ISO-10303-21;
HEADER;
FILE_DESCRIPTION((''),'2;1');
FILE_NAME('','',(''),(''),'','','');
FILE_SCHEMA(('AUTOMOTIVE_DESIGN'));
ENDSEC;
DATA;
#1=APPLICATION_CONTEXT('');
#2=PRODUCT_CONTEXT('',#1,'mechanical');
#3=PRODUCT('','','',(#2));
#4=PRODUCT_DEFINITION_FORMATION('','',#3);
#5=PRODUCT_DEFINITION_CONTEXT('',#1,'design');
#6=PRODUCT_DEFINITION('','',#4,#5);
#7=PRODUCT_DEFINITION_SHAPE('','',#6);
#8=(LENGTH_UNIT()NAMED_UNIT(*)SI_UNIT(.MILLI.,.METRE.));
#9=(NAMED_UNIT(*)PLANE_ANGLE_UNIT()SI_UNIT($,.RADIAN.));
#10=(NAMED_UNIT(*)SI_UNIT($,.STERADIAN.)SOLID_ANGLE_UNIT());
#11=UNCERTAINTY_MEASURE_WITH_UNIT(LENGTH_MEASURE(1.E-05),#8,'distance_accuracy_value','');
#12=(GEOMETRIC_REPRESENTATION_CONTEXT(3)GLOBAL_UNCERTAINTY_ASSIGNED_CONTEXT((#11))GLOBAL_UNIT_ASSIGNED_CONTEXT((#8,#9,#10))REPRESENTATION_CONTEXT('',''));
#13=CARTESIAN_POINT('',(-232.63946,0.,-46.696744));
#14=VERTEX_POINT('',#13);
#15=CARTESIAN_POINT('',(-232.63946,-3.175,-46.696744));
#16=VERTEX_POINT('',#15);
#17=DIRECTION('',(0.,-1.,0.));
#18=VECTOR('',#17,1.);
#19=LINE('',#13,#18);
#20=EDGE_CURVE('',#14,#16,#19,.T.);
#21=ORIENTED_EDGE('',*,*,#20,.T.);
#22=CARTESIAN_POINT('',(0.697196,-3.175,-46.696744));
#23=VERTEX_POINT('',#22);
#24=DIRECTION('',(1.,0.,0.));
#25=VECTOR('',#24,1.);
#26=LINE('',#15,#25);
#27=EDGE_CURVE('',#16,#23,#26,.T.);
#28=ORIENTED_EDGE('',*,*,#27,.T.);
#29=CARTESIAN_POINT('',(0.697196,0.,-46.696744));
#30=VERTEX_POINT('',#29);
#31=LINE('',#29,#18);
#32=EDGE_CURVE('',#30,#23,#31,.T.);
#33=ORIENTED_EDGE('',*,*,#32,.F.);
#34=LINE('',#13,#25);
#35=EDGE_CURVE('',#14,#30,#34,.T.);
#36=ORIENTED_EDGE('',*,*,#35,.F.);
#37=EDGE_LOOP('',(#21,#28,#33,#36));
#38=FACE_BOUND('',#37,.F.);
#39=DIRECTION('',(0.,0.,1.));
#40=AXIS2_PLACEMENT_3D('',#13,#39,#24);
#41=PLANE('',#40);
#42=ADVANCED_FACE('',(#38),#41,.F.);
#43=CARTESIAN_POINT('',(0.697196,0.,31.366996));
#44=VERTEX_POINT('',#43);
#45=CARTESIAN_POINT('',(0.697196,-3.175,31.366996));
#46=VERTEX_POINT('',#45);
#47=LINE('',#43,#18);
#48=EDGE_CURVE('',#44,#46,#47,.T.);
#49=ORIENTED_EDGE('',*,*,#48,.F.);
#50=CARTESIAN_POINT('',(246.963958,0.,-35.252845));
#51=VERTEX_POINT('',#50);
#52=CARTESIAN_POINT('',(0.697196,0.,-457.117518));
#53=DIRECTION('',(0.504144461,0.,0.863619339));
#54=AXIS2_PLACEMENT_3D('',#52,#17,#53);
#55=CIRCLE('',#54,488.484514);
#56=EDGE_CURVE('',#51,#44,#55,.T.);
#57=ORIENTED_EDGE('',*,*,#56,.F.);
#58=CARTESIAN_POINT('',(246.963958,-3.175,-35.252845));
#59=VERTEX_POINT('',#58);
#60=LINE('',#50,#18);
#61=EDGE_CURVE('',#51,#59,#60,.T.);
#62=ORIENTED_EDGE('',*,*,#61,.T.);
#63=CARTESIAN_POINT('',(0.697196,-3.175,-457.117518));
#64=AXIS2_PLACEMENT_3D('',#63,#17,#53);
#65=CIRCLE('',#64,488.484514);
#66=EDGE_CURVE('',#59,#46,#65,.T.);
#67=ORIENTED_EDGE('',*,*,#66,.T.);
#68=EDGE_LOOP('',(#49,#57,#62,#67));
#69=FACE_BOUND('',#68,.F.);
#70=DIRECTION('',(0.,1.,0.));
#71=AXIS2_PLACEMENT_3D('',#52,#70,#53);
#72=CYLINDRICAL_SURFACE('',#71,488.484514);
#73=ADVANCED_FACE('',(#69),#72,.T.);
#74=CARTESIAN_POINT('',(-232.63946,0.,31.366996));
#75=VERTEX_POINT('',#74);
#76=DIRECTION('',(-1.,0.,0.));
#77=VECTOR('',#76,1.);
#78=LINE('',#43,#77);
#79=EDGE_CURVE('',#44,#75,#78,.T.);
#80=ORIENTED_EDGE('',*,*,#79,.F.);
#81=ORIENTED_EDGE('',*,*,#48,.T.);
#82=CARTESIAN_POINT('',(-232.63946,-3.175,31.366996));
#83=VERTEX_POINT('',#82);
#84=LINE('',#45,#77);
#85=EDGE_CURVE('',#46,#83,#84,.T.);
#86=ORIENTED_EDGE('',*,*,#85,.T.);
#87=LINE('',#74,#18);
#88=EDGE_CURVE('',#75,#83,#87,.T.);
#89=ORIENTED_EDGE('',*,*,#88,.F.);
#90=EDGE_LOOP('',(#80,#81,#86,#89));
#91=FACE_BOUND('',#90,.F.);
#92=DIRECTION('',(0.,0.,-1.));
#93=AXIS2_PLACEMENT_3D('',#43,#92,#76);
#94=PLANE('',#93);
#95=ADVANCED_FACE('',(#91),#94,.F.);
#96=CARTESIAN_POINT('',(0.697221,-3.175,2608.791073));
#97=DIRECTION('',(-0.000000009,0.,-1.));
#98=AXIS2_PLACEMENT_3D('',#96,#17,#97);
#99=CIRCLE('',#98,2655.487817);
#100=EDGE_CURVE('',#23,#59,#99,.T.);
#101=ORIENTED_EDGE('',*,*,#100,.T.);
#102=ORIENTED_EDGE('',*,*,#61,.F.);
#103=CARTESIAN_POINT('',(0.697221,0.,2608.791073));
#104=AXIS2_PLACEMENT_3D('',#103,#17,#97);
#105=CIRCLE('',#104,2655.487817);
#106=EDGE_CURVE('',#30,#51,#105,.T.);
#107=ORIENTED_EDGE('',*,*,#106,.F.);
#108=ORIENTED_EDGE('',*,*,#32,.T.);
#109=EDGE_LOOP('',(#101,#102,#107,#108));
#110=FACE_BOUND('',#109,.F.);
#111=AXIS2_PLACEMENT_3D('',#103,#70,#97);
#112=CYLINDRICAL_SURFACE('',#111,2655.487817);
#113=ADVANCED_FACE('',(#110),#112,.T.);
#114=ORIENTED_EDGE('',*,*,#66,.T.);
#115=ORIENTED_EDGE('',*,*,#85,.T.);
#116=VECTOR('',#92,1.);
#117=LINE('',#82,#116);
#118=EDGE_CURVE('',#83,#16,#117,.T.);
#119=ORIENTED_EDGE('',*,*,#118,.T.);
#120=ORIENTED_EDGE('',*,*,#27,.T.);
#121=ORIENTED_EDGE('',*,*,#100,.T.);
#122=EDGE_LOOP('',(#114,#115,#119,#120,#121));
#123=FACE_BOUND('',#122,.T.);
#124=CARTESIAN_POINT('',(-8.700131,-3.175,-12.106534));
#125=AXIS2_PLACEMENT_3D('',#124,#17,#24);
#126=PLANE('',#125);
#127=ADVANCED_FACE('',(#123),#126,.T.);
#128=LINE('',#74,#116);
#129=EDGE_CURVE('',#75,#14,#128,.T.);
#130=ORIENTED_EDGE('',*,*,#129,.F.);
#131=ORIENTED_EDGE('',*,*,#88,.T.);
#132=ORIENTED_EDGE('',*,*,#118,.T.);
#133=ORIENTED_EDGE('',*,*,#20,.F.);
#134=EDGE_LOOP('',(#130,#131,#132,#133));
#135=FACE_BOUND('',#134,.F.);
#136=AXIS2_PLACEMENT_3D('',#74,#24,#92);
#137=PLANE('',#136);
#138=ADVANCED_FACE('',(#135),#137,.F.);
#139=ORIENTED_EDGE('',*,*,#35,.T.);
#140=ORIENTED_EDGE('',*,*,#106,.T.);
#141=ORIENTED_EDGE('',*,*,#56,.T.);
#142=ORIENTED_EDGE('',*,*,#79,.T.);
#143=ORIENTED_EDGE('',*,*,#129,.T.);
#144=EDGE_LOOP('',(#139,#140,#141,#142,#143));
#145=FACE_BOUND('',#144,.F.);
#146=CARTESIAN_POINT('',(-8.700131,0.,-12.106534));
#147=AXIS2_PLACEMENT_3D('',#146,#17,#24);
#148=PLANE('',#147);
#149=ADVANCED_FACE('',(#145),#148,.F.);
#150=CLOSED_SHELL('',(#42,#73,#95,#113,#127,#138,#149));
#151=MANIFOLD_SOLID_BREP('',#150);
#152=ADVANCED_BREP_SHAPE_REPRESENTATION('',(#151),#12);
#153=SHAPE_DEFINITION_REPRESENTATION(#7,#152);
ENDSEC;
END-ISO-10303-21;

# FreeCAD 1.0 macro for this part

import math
import FreeCAD as App
import Part
import Sketcher
Q = App.Units.Quantity

doc = App.newDocument("Part")
body = doc.addObject("PartDesign::Body", "Body")

# Sketch on XZ plane
sketch1 = body.newObject("Sketcher::SketchObject", "Sketch")
sketch1.AttachmentSupport = (doc.getObject("XZ_Plane"), [""])
sketch1.MapMode = "FlatFace"
sketch1.addGeometry(Part.LineSegment(App.Vector(0.697196, 31.366996, 0), App.Vector(-232.63946, 31.366996, 0)), False)
sketch1.addGeometry(Part.LineSegment(App.Vector(-232.63946, 31.366996, 0), App.Vector(-232.63946, -46.696744, 0)), False)
sketch1.addGeometry(Part.LineSegment(App.Vector(-232.63946, -46.696744, 0), App.Vector(0.697196, -46.696744, 0)), False)
sketch1.addGeometry(Part.ArcOfCircle(Part.Circle(App.Vector(0.697221, 2608.791073, 0), App.Vector(0, 0, 1), 2655.487817), math.radians(-90.000001), math.radians(-84.678812)), False)
sketch1.addGeometry(Part.ArcOfCircle(Part.Circle(App.Vector(0.697196, -457.117518, 0), App.Vector(0, 0, 1), 488.484514), math.radians(59.725424), math.radians(90)), False)
sketch1.addConstraint(Sketcher.Constraint("Coincident", 0, 2, 1, 1))
sketch1.addConstraint(Sketcher.Constraint("Coincident", 1, 2, 2, 1))
sketch1.addConstraint(Sketcher.Constraint("Coincident", 2, 2, 3, 1))
sketch1.addConstraint(Sketcher.Constraint("Coincident", 3, 2, 4, 1))
sketch1.addConstraint(Sketcher.Constraint("Coincident", 4, 2, 0, 1))
sketch1.addConstraint(Sketcher.Constraint("Horizontal", 0))
sketch1.addConstraint(Sketcher.Constraint("Vertical", 1))
sketch1.addConstraint(Sketcher.Constraint("Horizontal", 2))
sketch1.addConstraint(Sketcher.Constraint("Radius", 3, 2655.487817))
sketch1.addConstraint(Sketcher.Constraint("Radius", 4, 488.484514))
sketch1.addConstraint(Sketcher.Constraint("DistanceY", 1, 2, 1, 1, 78.06374))
sketch1.addConstraint(Sketcher.Constraint("DistanceX", 0, 2, 0, 1, 233.336656))
sketch1.addConstraint(Sketcher.Constraint("DistanceX", 2, 1, 2, 2, 233.336656))
sketch1.addConstraint(Sketcher.Constraint("DistanceX", -1, 1, 3, 3, 0.697221))
sketch1.addConstraint(Sketcher.Constraint("DistanceY", 4, 3, -1, 1, 457.117518))
sketch1.addConstraint(Sketcher.Constraint("DistanceX", 0, 2, -1, 1, 232.63946))
sketch1.addConstraint(Sketcher.Constraint("DistanceX", -1, 1, 4, 3, 0.697196))
pad1 = body.newObject("PartDesign::Pad", "Pad")
pad1.Profile = sketch1
pad1.Length = Q("0.125 in")

doc.recompute()
